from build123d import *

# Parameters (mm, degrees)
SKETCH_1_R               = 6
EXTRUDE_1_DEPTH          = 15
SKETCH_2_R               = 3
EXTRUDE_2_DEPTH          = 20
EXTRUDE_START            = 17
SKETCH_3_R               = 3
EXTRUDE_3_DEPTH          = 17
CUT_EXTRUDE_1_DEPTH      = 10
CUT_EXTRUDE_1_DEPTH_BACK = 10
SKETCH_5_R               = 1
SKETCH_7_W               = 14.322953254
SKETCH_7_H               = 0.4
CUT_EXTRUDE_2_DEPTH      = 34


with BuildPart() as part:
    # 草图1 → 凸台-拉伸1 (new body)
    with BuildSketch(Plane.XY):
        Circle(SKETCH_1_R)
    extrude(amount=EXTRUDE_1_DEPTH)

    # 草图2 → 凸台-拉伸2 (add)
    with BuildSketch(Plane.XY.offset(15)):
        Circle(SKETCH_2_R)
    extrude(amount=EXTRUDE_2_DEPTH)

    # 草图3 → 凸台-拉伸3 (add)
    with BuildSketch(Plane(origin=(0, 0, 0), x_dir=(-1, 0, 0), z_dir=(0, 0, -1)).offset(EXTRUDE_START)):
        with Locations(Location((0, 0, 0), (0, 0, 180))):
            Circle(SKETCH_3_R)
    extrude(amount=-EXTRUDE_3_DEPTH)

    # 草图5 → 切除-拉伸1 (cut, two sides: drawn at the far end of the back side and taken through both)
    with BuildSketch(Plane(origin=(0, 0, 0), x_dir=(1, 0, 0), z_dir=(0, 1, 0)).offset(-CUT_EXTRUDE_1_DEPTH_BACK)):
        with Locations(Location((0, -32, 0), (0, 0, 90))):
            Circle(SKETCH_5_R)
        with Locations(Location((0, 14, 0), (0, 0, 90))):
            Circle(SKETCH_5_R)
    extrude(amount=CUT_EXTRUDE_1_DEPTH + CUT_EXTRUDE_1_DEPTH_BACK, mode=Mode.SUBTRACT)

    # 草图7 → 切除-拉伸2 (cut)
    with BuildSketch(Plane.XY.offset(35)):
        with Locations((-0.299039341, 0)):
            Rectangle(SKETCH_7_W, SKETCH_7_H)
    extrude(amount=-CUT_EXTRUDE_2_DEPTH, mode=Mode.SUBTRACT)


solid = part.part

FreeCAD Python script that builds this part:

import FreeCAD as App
import Part
import Sketcher
from FreeCAD import Vector

doc = App.newDocument("Part")
body = doc.addObject("PartDesign::Body", "Body")

sketch1 = doc.addObject("Sketcher::SketchObject", "Sketch")
body.addObject(sketch1)
sketch1.AttachmentSupport = (doc.XY_Plane, [""])
sketch1.MapMode = "FlatFace"
sketch1.addGeometry(Part.Circle(Vector(0, 0, 0), Vector(0, 0, 1), 6), False)
sketch1.addConstraint(Sketcher.Constraint("Coincident", 0, 3, -1, 1))
sketch1.addConstraint(Sketcher.Constraint("Diameter", 0, 12.0))
pad1 = doc.addObject("PartDesign::Pad", "Pad")
body.addObject(pad1)
pad1.Profile = sketch1
pad1.Length = 15

sketch2 = doc.addObject("Sketcher::SketchObject", "Sketch001")
body.addObject(sketch2)
sketch2.AttachmentSupport = (doc.XY_Plane, [""])
sketch2.MapMode = "FlatFace"
sketch2.AttachmentOffset = App.Placement(Vector(0, 0, 15), App.Rotation())
sketch2.addGeometry(Part.Circle(Vector(0, 0, 0), Vector(0, 0, 1), 3), False)
sketch2.addConstraint(Sketcher.Constraint("Coincident", 0, 3, -1, 1))
sketch2.addConstraint(Sketcher.Constraint("Diameter", 0, 6.0))
pad2 = doc.addObject("PartDesign::Pad", "Pad001")
body.addObject(pad2)
pad2.Profile = sketch2
pad2.Length = 20

sketch3 = doc.addObject("Sketcher::SketchObject", "Sketch002")
body.addObject(sketch3)
sketch3.AttachmentSupport = (doc.XY_Plane, [""])
sketch3.MapMode = "FlatFace"
sketch3.AttachmentOffset = App.Placement(Vector(0, 0, -17), App.Rotation())
sketch3.addGeometry(Part.Circle(Vector(0, 0, 0), Vector(0, 0, 1), 3), False)
sketch3.addConstraint(Sketcher.Constraint("Coincident", 0, 3, -1, 1))
sketch3.addConstraint(Sketcher.Constraint("Diameter", 0, 6.0))
pad3 = doc.addObject("PartDesign::Pad", "Pad002")
body.addObject(pad3)
pad3.Profile = sketch3
pad3.Length = 17

sketch4 = doc.addObject("Sketcher::SketchObject", "Sketch003")
body.addObject(sketch4)
sketch4.AttachmentSupport = (doc.XZ_Plane, [""])
sketch4.MapMode = "FlatFace"
sketch4.addGeometry(Part.Circle(Vector(0, 32, 0), Vector(0, 0, 1), 1), False)
sketch4.addGeometry(Part.Circle(Vector(0, -14, 0), Vector(0, 0, 1), 1), False)
sketch4.addConstraint(Sketcher.Constraint("Equal", 0, 1))
sketch4.addConstraint(Sketcher.Constraint("PointOnObject", 0, 3, -2))
sketch4.addConstraint(Sketcher.Constraint("PointOnObject", 1, 3, -2))
sketch4.addConstraint(Sketcher.Constraint("Diameter", 0, 2.0))
sketch4.addConstraint(Sketcher.Constraint("DistanceY", -1, 1, 0, 3, 32.0))
sketch4.addConstraint(Sketcher.Constraint("DistanceY", 1, 3, -1, 1, 14.0))
pocket1 = doc.addObject("PartDesign::Pocket", "Pocket")
body.addObject(pocket1)
pocket1.Profile = sketch4
pocket1.Type = "ThroughAll"
pocket1.Midplane = True

sketch5 = doc.addObject("Sketcher::SketchObject", "Sketch004")
body.addObject(sketch5)
sketch5.AttachmentSupport = (doc.XY_Plane, [""])
sketch5.MapMode = "FlatFace"
sketch5.AttachmentOffset = App.Placement(Vector(0, 0, 35), App.Rotation())
sketch5.addGeometry(Part.LineSegment(Vector(-7.46, 0.2, 0), Vector(-7.46, -0.2, 0)), False)
sketch5.addGeometry(Part.LineSegment(Vector(-7.46, -0.2, 0), Vector(6.86, -0.2, 0)), False)
sketch5.addGeometry(Part.LineSegment(Vector(6.86, -0.2, 0), Vector(6.86, 0.2, 0)), False)
sketch5.addGeometry(Part.LineSegment(Vector(6.86, 0.2, 0), Vector(-7.46, 0.2, 0)), False)
sketch5.addConstraint(Sketcher.Constraint("Coincident", 0, 2, 1, 1))
sketch5.addConstraint(Sketcher.Constraint("Coincident", 1, 2, 2, 1))
sketch5.addConstraint(Sketcher.Constraint("Coincident", 2, 2, 3, 1))
sketch5.addConstraint(Sketcher.Constraint("Coincident", 3, 2, 0, 1))
sketch5.addConstraint(Sketcher.Constraint("Vertical", 0))
sketch5.addConstraint(Sketcher.Constraint("Horizontal", 1))
sketch5.addConstraint(Sketcher.Constraint("Vertical", 2))
sketch5.addConstraint(Sketcher.Constraint("Horizontal", 3))
sketch5.addConstraint(Sketcher.Constraint("DistanceY", 0, 2, 0, 1, 0.4))
sketch5.addConstraint(Sketcher.Constraint("DistanceY", 0, 2, -1, 1, 0.2))
sketch5.addConstraint(Sketcher.Constraint("DistanceX", 1, 1, 1, 2, 14.322953))
sketch5.addConstraint(Sketcher.Constraint("DistanceX", 0, 2, -1, 1, 7.460516))
pocket2 = doc.addObject("PartDesign::Pocket", "Pocket001")
body.addObject(pocket2)
pocket2.Profile = sketch5
pocket2.Length = 34

doc.recompute()
